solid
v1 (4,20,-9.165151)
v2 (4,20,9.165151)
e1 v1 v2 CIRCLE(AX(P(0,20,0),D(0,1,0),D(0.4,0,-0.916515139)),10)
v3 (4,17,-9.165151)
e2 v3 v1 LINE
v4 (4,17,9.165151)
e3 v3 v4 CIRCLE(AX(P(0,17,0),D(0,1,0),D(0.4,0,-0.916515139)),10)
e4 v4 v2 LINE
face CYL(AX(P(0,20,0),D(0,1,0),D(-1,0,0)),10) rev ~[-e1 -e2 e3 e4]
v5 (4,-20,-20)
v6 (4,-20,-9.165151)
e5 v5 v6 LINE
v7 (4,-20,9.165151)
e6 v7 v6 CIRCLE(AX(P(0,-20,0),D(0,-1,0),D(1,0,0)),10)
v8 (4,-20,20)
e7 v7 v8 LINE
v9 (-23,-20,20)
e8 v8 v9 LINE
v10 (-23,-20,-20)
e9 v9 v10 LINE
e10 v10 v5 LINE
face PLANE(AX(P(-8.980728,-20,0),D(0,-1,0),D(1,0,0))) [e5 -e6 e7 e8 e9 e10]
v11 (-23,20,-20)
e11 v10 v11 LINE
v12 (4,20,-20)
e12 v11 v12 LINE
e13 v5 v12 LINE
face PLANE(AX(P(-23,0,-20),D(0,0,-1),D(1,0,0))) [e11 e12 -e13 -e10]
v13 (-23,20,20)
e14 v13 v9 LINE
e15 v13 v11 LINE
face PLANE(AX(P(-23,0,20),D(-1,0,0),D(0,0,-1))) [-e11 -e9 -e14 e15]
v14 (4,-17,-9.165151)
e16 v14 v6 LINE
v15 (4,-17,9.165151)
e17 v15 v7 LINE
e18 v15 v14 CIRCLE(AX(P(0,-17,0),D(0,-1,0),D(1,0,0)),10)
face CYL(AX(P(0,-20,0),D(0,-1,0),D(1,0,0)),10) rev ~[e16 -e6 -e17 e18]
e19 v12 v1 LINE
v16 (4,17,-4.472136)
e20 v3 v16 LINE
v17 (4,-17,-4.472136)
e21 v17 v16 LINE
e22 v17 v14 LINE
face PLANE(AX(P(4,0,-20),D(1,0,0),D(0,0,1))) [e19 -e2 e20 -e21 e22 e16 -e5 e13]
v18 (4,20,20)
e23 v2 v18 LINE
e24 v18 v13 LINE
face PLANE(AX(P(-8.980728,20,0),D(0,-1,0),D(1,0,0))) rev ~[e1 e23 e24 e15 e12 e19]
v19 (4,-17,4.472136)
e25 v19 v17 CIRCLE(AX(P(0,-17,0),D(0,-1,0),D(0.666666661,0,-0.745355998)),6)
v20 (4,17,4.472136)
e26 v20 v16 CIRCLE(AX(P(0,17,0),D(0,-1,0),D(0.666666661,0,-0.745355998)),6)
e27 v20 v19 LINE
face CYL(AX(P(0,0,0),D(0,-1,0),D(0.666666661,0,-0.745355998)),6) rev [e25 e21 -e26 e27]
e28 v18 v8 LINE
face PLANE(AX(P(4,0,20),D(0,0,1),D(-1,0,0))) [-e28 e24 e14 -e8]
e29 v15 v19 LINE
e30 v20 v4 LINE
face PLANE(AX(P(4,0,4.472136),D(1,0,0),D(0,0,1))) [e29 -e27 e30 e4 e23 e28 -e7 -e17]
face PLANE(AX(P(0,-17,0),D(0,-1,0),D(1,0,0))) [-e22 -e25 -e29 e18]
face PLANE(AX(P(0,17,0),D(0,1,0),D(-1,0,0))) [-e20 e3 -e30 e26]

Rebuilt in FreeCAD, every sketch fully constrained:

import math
import FreeCAD as App
import Part
import Sketcher

doc = App.newDocument("Part")
body = doc.addObject("PartDesign::Body", "Body")

# Sketch on XZ plane
sketch1 = body.newObject("Sketcher::SketchObject", "Sketch")
sketch1.AttachmentSupport = (doc.getObject("XZ_Plane"), [""])
sketch1.MapMode = "FlatFace"
sketch1.addGeometry([
    Part.ArcOfCircle(Part.Circle(App.Vector(0, 0, 0), App.Vector(0, 0, 1), 6), math.radians(48), math.radians(312)),  # 0
    Part.LineSegment(App.Vector(4, 4, 0), App.Vector(4, 20, 0)),  # 1
    Part.LineSegment(App.Vector(4, 20, 0), App.Vector(-23, 20, 0)),  # 2
    Part.LineSegment(App.Vector(-23, 20, 0), App.Vector(-23, -20, 0)),  # 3
    Part.LineSegment(App.Vector(-23, -20, 0), App.Vector(4, -20, 0)),  # 4
    Part.LineSegment(App.Vector(4, -20, 0), App.Vector(4, -4, 0)),  # 5
], False)
sketch1.addConstraint([
    Sketcher.Constraint("Coincident", 0, 1, 1, 1),
    Sketcher.Constraint("Coincident", 1, 2, 2, 1),
    Sketcher.Constraint("Coincident", 2, 2, 3, 1),
    Sketcher.Constraint("Coincident", 3, 2, 4, 1),
    Sketcher.Constraint("Coincident", 4, 2, 5, 1),
    Sketcher.Constraint("Coincident", 5, 2, 0, 2),
    Sketcher.Constraint("Vertical", 1),
    Sketcher.Constraint("Horizontal", 2),
    Sketcher.Constraint("Vertical", 3),
    Sketcher.Constraint("Horizontal", 4),
    Sketcher.Constraint("Vertical", 5),
    Sketcher.Constraint("Coincident", 0, 3, -1, 1),
    Sketcher.Constraint("Symmetric", 1, 2, 4, 2, -1),
    Sketcher.Constraint("Radius", 0, 6.0),
    Sketcher.Constraint("DistanceX", 2, 2, 2, 1, 27.0),
    Sketcher.Constraint("DistanceY", 3, 2, 3, 1, 40.0),
    Sketcher.Constraint("DistanceX", -1, 1, 0, 1, 4.0),
])
pad1 = body.newObject("PartDesign::Pad", "Pad")
pad1.Profile = sketch1
pad1.Type = "TwoLengths"
pad1.Length = 20
pad1.Length2 = 20

# Sketch on XZ plane
sketch2 = body.newObject("Sketcher::SketchObject", "Sketch001")
sketch2.AttachmentSupport = (doc.getObject("XZ_Plane"), [""])
sketch2.MapMode = "FlatFace"
sketch2.AttachmentOffset = App.Placement(App.Vector(0, 0, -20), App.Rotation())
sketch2.addGeometry(Part.Circle(App.Vector(0, 0, 0), App.Vector(0, 0, 1), 10), False)
sketch2.addConstraint([
    Sketcher.Constraint("Coincident", 0, 3, -1, 1),
    Sketcher.Constraint("Diameter", 0, 20.0),
])
pocket1 = body.newObject("PartDesign::Pocket", "Pocket")
pocket1.Profile = sketch2
pocket1.Length = 3
pocket1.Reversed = True

# Sketch on XZ plane
sketch3 = body.newObject("Sketcher::SketchObject", "Sketch002")
sketch3.AttachmentSupport = (doc.getObject("XZ_Plane"), [""])
sketch3.MapMode = "FlatFace"
sketch3.AttachmentOffset = App.Placement(App.Vector(0, 0, 20), App.Rotation())
sketch3.addGeometry(Part.Circle(App.Vector(0, 0, 0), App.Vector(0, 0, 1), 10), False)
sketch3.addConstraint([
    Sketcher.Constraint("Coincident", 0, 3, -1, 1),
    Sketcher.Constraint("Diameter", 0, 20.0),
])
pocket2 = body.newObject("PartDesign::Pocket", "Pocket001")
pocket2.Profile = sketch3
pocket2.Length = 3

doc.recompute()
